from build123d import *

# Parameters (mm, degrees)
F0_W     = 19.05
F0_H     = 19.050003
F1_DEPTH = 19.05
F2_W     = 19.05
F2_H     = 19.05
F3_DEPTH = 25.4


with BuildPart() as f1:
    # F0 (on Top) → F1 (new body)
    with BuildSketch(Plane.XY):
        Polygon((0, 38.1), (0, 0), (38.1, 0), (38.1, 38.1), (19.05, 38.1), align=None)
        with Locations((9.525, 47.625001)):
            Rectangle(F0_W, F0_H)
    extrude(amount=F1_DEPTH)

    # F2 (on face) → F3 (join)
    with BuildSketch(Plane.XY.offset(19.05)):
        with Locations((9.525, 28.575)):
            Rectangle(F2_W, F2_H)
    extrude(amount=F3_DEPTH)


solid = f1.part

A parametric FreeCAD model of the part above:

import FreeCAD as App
import Part
import Sketcher

V = App.Vector
Q = App.Units.Quantity

doc = App.newDocument("Part")
body = doc.addObject("PartDesign::Body", "Body")

# Sketch on XY plane
sketch1 = doc.addObject("Sketcher::SketchObject", "Sketch")
body.addObject(sketch1)
sketch1.AttachmentSupport = (doc.XY_Plane, [""])
sketch1.MapMode = "FlatFace"
sketch1.addGeometry(Part.LineSegment(V(0, 0, 0), V(38, 0, 0)), False)
sketch1.addGeometry(Part.LineSegment(V(38, 0, 0), V(38, 38, 0)), False)
sketch1.addGeometry(Part.LineSegment(V(38, 38, 0), V(19, 38, 0)), False)
sketch1.addGeometry(Part.LineSegment(V(19, 38, 0), V(19, 57, 0)), False)
sketch1.addGeometry(Part.LineSegment(V(19, 57, 0), V(0, 57, 0)), False)
sketch1.addGeometry(Part.LineSegment(V(0, 57, 0), V(0, 0, 0)), False)
sketch1.addConstraint(Sketcher.Constraint("Coincident", 0, 2, 1, 1))
sketch1.addConstraint(Sketcher.Constraint("Coincident", 1, 2, 2, 1))
sketch1.addConstraint(Sketcher.Constraint("Coincident", 2, 2, 3, 1))
sketch1.addConstraint(Sketcher.Constraint("Coincident", 3, 2, 4, 1))
sketch1.addConstraint(Sketcher.Constraint("Coincident", 4, 2, 5, 1))
sketch1.addConstraint(Sketcher.Constraint("Coincident", 5, 2, 0, 1))
sketch1.addConstraint(Sketcher.Constraint("Horizontal", 0))
sketch1.addConstraint(Sketcher.Constraint("Vertical", 1))
sketch1.addConstraint(Sketcher.Constraint("Horizontal", 2))
sketch1.addConstraint(Sketcher.Constraint("Vertical", 3))
sketch1.addConstraint(Sketcher.Constraint("Horizontal", 4))
sketch1.addConstraint(Sketcher.Constraint("Vertical", 5))
sketch1.addConstraint(Sketcher.Constraint("Coincident", 5, 2, -1, 1))
sketch1.addConstraint(Sketcher.Constraint("Equal", 2, 4))
sketch1.addConstraint(Sketcher.Constraint("Equal", 0, 1))
sketch1.addConstraint(Sketcher.Constraint("DistanceX", 0, 1, 0, 2, Q("1.5 in")))
sketch1.addConstraint(Sketcher.Constraint("DistanceY", 3, 1, 3, 2, Q("0.7500001 in")))
pad1 = doc.addObject("PartDesign::Pad", "Pad")
body.addObject(pad1)
pad1.Profile = sketch1
pad1.Length = Q("0.75 in")

# Sketch on XY plane
sketch2 = doc.addObject("Sketcher::SketchObject", "Sketch001")
body.addObject(sketch2)
sketch2.AttachmentSupport = (doc.XY_Plane, [""])
sketch2.MapMode = "FlatFace"
sketch2.AttachmentOffset = App.Placement(V(0, 0, 0.75 * 25.4), App.Rotation())
sketch2.addGeometry(Part.LineSegment(V(0, 38, 0), V(0, 19, 0)), False)
sketch2.addGeometry(Part.LineSegment(V(0, 19, 0), V(19, 19, 0)), False)
sketch2.addGeometry(Part.LineSegment(V(19, 19, 0), V(19, 38, 0)), False)
sketch2.addGeometry(Part.LineSegment(V(19, 38, 0), V(0, 38, 0)), False)
sketch2.addConstraint(Sketcher.Constraint("Coincident", 0, 2, 1, 1))
sketch2.addConstraint(Sketcher.Constraint("Coincident", 1, 2, 2, 1))
sketch2.addConstraint(Sketcher.Constraint("Coincident", 2, 2, 3, 1))
sketch2.addConstraint(Sketcher.Constraint("Coincident", 3, 2, 0, 1))
sketch2.addConstraint(Sketcher.Constraint("Vertical", 0))
sketch2.addConstraint(Sketcher.Constraint("Horizontal", 1))
sketch2.addConstraint(Sketcher.Constraint("Vertical", 2))
sketch2.addConstraint(Sketcher.Constraint("Horizontal", 3))
sketch2.addConstraint(Sketcher.Constraint("PointOnObject", 0, 2, -2))
sketch2.addConstraint(Sketcher.Constraint("Equal", 3, 0))
sketch2.addConstraint(Sketcher.Constraint("DistanceX", 1, 1, 1, 2, Q("0.75 in")))
sketch2.addConstraint(Sketcher.Constraint("DistanceY", -1, 1, 2, 2, Q("1.5 in")))
pad2 = doc.addObject("PartDesign::Pad", "Pad001")
body.addObject(pad2)
pad2.Profile = sketch2
pad2.Length = Q("1 in")

doc.recompute()
